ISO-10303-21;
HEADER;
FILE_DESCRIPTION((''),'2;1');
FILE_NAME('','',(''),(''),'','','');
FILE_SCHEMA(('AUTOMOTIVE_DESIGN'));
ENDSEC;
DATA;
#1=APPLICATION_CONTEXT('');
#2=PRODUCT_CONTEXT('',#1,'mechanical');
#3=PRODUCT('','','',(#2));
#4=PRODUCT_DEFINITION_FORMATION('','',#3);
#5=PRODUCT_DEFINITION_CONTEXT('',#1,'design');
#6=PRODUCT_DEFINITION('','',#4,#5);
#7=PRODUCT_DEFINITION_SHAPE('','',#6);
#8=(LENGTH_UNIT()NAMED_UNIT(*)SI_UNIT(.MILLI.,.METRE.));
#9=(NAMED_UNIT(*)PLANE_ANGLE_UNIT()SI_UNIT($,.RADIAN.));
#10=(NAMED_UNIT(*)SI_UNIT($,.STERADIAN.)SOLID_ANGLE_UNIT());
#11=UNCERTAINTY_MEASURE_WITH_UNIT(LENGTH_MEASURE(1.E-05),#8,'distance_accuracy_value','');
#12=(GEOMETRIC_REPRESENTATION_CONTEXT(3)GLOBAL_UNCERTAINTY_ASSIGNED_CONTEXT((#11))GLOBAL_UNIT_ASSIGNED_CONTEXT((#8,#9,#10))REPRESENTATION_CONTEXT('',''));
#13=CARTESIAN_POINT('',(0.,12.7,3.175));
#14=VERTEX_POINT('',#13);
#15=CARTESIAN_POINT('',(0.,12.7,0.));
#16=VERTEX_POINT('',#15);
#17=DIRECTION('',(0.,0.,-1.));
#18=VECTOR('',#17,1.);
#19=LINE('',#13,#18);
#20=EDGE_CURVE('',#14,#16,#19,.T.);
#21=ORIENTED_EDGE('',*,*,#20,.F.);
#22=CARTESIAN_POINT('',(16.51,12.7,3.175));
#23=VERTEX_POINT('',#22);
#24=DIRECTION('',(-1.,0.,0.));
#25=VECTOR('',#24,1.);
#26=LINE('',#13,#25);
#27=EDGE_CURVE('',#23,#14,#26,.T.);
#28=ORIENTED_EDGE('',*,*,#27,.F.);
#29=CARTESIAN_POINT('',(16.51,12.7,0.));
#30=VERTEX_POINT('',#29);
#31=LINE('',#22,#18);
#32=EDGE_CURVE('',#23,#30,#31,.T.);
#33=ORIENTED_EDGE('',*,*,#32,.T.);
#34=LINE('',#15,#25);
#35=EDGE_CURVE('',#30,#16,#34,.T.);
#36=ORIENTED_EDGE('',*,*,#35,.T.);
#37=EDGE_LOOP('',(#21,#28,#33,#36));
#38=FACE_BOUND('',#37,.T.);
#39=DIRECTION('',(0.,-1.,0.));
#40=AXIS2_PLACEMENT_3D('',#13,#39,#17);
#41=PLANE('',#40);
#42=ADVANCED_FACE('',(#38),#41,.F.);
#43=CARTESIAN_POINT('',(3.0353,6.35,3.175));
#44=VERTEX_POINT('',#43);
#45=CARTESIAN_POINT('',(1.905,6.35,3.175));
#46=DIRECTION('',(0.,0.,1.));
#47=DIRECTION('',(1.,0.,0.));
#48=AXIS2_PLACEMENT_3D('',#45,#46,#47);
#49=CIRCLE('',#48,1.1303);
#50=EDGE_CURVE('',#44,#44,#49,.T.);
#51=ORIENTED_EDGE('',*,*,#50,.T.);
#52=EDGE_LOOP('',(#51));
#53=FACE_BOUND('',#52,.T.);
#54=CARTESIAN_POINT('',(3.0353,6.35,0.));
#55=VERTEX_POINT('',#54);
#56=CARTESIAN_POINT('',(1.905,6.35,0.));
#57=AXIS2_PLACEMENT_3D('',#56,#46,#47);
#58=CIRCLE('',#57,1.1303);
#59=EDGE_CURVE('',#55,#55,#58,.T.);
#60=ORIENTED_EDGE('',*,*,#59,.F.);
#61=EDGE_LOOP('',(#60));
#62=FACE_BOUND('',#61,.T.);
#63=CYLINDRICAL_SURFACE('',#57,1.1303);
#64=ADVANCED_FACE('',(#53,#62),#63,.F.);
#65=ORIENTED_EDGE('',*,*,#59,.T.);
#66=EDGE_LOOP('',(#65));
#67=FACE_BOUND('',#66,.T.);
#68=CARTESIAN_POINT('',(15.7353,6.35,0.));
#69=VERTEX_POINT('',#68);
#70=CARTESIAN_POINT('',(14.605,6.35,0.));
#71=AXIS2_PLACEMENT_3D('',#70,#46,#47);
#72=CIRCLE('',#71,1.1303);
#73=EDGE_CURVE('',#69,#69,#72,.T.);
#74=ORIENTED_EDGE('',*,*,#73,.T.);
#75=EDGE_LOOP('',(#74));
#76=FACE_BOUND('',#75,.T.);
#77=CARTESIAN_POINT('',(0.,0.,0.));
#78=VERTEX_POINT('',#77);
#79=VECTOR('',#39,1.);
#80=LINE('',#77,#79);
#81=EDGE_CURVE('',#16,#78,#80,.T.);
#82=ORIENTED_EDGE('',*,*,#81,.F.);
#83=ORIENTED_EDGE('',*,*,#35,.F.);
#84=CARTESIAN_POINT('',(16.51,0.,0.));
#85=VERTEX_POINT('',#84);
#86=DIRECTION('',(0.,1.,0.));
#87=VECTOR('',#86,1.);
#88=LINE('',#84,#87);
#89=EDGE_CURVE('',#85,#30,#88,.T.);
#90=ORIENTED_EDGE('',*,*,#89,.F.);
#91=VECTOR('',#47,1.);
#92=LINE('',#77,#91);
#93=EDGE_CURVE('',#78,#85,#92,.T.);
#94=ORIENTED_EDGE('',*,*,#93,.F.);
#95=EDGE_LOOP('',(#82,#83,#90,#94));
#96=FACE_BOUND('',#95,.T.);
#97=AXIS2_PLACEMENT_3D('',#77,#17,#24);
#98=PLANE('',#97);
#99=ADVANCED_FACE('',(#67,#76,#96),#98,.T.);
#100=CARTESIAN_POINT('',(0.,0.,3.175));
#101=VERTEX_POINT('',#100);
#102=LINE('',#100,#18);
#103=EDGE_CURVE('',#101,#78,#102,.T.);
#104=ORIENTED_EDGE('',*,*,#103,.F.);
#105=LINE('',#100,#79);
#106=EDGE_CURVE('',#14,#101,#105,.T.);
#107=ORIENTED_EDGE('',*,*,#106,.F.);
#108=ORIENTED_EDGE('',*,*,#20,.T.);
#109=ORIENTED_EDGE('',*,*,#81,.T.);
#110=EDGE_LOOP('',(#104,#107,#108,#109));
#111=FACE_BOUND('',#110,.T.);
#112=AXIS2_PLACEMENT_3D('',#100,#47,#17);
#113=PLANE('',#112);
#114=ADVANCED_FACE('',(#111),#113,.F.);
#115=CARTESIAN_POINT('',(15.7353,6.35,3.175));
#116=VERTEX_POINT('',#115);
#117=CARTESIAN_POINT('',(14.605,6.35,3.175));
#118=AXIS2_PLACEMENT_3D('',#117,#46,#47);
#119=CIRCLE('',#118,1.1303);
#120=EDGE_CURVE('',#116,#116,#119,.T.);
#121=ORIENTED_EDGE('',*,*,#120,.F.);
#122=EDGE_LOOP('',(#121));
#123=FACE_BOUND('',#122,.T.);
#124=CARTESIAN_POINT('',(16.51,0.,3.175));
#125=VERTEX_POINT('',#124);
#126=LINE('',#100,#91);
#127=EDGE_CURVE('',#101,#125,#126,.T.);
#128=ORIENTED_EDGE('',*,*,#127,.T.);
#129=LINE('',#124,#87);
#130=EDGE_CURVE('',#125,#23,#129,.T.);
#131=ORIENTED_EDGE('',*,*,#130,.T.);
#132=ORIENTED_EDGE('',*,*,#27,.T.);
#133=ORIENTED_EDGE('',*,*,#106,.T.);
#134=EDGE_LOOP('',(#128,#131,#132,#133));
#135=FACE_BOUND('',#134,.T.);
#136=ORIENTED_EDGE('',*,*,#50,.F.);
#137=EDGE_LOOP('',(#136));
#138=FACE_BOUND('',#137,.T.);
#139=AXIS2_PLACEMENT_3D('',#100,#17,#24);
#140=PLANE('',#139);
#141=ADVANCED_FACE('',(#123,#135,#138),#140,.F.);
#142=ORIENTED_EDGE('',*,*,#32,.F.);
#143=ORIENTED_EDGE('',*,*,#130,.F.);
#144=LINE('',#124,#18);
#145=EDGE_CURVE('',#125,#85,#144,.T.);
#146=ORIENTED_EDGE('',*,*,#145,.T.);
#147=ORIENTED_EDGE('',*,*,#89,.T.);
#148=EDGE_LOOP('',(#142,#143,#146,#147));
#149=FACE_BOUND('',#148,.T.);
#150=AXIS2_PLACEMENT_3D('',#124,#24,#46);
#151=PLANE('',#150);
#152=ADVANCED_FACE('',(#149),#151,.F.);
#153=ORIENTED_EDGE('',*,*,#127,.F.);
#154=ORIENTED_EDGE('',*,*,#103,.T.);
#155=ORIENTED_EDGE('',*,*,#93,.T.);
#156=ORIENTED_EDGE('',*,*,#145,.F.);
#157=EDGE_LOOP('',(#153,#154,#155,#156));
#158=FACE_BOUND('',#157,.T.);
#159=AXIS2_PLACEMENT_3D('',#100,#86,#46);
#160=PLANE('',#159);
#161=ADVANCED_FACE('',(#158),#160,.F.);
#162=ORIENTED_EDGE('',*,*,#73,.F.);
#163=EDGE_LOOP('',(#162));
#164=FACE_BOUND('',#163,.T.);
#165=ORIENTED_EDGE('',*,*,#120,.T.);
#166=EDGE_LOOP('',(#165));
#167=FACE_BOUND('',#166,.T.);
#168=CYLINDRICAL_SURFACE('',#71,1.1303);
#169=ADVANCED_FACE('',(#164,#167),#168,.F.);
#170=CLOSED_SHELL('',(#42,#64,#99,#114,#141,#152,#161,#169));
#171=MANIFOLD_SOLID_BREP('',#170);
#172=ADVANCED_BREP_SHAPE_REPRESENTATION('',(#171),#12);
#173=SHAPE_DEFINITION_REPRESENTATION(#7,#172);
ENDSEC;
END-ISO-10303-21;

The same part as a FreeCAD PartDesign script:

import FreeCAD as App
import Part
import Sketcher
Q = App.Units.Quantity

doc = App.newDocument("Part")
body = doc.addObject("PartDesign::Body", "Body")

# Sketch on XY plane
sketch1 = doc.addObject("Sketcher::SketchObject", "Sketch")
body.addObject(sketch1)
sketch1.AttachmentSupport = (doc.XY_Plane, [""])
sketch1.MapMode = "FlatFace"
sketch1.addGeometry([
    Part.LineSegment(App.Vector(0, 13, 0), App.Vector(0, 0, 0)),
    Part.LineSegment(App.Vector(0, 0, 0), App.Vector(17, 0, 0)),
    Part.LineSegment(App.Vector(17, 0, 0), App.Vector(17, 13, 0)),
    Part.LineSegment(App.Vector(17, 13, 0), App.Vector(0, 13, 0)),
], False)
sketch1.addConstraint([
    Sketcher.Constraint("Coincident", 0, 2, 1, 1),
    Sketcher.Constraint("Coincident", 1, 2, 2, 1),
    Sketcher.Constraint("Coincident", 2, 2, 3, 1),
    Sketcher.Constraint("Coincident", 3, 2, 0, 1),
    Sketcher.Constraint("Vertical", 0),
    Sketcher.Constraint("Horizontal", 1),
    Sketcher.Constraint("Vertical", 2),
    Sketcher.Constraint("Horizontal", 3),
    Sketcher.Constraint("Coincident", 0, 2, -1, 1),
    Sketcher.Constraint("DistanceY", 0, 2, 0, 1, Q("0.5 in")),
    Sketcher.Constraint("DistanceX", 1, 1, 1, 2, Q("0.65 in")),
])
pad1 = doc.addObject("PartDesign::Pad", "Pad")
body.addObject(pad1)
pad1.Profile = sketch1
pad1.Length = Q("0.125 in")

# Sketch on XY plane
sketch2 = doc.addObject("Sketcher::SketchObject", "Sketch001")
body.addObject(sketch2)
sketch2.AttachmentSupport = (doc.XY_Plane, [""])
sketch2.MapMode = "FlatFace"
sketch2.AttachmentOffset = App.Placement(App.Vector(0, 0, 0.125 * 25.4), App.Rotation())
sketch2.addGeometry([
    Part.Circle(App.Vector(1.9, 6.3, 0), App.Vector(0, 0, 1), 1.1),
    Part.Circle(App.Vector(14.6, 6.3, 0), App.Vector(0, 0, 1), 1.1),
], False)
sketch2.addConstraint([
    Sketcher.Constraint("Equal", 0, 1),
    Sketcher.Constraint("Horizontal", 0, 3, 1, 3),
    Sketcher.Constraint("Diameter", 0, Q("0.089 in")),
    Sketcher.Constraint("DistanceX", 0, 3, 1, 3, Q("0.5 in")),
    Sketcher.Constraint("DistanceY", -1, 1, 0, 3, Q("0.25 in")),
    Sketcher.Constraint("DistanceX", -1, 1, 0, 3, Q("0.075 in")),
])
pocket1 = doc.addObject("PartDesign::Pocket", "Pocket")
body.addObject(pocket1)
pocket1.Profile = sketch2
pocket1.Type = "ThroughAll"

doc.recompute()
